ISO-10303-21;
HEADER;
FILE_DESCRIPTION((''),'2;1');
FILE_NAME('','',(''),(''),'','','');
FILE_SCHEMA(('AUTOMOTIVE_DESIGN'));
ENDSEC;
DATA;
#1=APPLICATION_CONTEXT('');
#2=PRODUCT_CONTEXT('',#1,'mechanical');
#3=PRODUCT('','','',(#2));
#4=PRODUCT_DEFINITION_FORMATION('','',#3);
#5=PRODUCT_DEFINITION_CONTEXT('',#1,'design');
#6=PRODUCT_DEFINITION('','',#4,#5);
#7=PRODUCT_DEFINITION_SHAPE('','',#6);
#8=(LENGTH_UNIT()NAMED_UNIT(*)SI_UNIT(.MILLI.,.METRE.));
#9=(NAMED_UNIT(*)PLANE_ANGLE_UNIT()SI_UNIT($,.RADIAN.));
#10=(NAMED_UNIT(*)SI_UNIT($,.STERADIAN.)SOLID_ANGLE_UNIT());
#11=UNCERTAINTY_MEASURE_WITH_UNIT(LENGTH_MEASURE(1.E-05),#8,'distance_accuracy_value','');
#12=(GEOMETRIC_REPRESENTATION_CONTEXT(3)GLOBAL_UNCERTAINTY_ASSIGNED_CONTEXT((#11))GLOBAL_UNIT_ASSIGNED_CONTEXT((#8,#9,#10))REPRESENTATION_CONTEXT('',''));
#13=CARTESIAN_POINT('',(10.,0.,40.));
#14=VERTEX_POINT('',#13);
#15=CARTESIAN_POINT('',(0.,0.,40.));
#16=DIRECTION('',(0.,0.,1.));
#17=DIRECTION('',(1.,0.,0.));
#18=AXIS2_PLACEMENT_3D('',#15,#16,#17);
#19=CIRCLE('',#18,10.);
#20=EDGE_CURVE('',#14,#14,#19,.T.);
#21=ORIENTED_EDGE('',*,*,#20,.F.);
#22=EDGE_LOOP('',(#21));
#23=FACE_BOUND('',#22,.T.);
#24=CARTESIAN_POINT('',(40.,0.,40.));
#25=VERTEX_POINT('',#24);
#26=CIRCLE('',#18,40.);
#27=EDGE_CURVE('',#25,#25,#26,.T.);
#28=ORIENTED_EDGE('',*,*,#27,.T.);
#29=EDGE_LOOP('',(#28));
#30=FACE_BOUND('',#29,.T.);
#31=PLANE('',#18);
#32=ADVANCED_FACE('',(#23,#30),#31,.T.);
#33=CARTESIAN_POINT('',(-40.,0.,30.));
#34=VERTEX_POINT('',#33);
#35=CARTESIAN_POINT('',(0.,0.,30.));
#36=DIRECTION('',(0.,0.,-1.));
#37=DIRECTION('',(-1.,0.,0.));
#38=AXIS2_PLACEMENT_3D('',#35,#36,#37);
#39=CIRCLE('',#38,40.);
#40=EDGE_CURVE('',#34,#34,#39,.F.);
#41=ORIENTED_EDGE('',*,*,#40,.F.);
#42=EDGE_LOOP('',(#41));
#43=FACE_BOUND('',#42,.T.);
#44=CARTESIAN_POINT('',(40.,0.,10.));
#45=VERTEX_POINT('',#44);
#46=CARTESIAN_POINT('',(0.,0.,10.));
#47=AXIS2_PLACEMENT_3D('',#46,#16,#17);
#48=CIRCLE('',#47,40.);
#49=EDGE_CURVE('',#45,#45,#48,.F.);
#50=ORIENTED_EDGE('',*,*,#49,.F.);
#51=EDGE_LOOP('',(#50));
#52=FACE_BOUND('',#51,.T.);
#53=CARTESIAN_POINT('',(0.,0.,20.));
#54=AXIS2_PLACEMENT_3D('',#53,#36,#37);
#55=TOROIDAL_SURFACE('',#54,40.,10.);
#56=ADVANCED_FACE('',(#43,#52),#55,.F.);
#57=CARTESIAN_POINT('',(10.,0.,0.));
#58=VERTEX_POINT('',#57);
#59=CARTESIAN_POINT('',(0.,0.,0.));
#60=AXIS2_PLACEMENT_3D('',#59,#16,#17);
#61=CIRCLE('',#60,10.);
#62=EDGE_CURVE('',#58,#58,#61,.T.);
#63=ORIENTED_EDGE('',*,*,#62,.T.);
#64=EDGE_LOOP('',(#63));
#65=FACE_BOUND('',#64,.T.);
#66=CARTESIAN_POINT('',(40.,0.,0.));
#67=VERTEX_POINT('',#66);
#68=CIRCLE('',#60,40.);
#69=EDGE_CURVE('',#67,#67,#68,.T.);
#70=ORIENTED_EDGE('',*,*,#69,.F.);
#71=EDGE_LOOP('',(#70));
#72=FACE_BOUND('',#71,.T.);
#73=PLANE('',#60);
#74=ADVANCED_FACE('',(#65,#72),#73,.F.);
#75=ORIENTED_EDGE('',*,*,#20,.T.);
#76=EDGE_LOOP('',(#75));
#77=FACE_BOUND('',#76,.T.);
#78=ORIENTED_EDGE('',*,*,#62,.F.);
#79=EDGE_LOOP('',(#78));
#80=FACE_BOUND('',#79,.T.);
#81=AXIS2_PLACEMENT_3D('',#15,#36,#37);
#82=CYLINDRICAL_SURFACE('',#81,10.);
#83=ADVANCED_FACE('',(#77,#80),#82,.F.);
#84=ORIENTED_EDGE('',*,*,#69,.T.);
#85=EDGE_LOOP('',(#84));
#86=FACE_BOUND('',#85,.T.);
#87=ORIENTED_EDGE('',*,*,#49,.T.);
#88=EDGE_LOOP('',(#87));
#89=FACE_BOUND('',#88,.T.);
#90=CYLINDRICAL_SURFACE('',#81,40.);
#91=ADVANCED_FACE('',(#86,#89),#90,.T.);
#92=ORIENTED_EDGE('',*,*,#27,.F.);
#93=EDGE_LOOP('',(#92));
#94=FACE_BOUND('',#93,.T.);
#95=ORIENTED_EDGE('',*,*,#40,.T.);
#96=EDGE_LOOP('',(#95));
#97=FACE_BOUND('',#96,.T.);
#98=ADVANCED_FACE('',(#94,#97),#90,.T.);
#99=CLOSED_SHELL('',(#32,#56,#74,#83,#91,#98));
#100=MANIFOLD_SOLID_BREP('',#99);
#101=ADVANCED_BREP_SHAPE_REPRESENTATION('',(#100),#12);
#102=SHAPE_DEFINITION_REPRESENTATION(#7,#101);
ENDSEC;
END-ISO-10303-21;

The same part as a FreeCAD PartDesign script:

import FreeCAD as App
import Part
import Sketcher
from FreeCAD import Vector

doc = App.newDocument("Part")
params = doc.addObject("Spreadsheet::Sheet", "Params")
for row, (alias, value) in enumerate([
    ("sketch1_diameter", "80 mm"),
    ("sketch1_diameter2", "20 mm"),
    ("pad1_length", "40 mm"),
    ("sketch2_diameter", "20 mm"),
    ("groove_angle", "360 deg"),
], start=1):
    params.set(f"A{row}", alias)
    params.set(f"B{row}", "=" + value)
    params.setAlias(f"B{row}", alias)

body = doc.addObject("PartDesign::Body", "Body")

# Sketch on XY plane
sketch1 = doc.addObject("Sketcher::SketchObject", "Sketch")
body.addObject(sketch1)
sketch1.AttachmentSupport = (doc.XY_Plane, [""])
sketch1.MapMode = "FlatFace"
sketch1.addGeometry(Part.Circle(Vector(0, 0, 0), Vector(0, 0, 1), 40), False)
sketch1.addGeometry(Part.Circle(Vector(0, 0, 0), Vector(0, 0, 1), 10), False)
sketch1.addConstraint(Sketcher.Constraint("Coincident", 0, 3, -1, 1))
sketch1.addConstraint(Sketcher.Constraint("Coincident", 1, 3, -1, 1))
sketch1.addConstraint(Sketcher.Constraint("Diameter", 0, 80.0))
sketch1.addConstraint(Sketcher.Constraint("Diameter", 1, 20.0))
sketch1.setExpression("Constraints[2]", "Params.sketch1_diameter")
sketch1.setExpression("Constraints[3]", "Params.sketch1_diameter2")
pad1 = doc.addObject("PartDesign::Pad", "Pad")
body.addObject(pad1)
pad1.Profile = sketch1
pad1.setExpression("Length", "Params.pad1_length")

# Sketch on XZ plane
sketch2 = doc.addObject("Sketcher::SketchObject", "Sketch001")
body.addObject(sketch2)
sketch2.AttachmentSupport = (doc.XZ_Plane, [""])
sketch2.MapMode = "FlatFace"
sketch2.addGeometry(Part.Circle(Vector(-40, 20, 0), Vector(0, 0, 1), 10), False)
sketch2.addConstraint(Sketcher.Constraint("Diameter", 0, 20.0))
sketch2.addConstraint(Sketcher.Constraint("DistanceX", 0, 3, -1, 1, 40.0))
sketch2.addConstraint(Sketcher.Constraint("DistanceY", -1, 1, 0, 3, 20.0))
sketch2.setExpression("Constraints[0]", "Params.sketch2_diameter")
groove = doc.addObject("PartDesign::Groove", "Groove")
body.addObject(groove)
groove.Profile = sketch2
groove.ReferenceAxis = (sketch2, ["V_Axis"])
groove.setExpression("Angle", "Params.groove_angle")

doc.recompute()
